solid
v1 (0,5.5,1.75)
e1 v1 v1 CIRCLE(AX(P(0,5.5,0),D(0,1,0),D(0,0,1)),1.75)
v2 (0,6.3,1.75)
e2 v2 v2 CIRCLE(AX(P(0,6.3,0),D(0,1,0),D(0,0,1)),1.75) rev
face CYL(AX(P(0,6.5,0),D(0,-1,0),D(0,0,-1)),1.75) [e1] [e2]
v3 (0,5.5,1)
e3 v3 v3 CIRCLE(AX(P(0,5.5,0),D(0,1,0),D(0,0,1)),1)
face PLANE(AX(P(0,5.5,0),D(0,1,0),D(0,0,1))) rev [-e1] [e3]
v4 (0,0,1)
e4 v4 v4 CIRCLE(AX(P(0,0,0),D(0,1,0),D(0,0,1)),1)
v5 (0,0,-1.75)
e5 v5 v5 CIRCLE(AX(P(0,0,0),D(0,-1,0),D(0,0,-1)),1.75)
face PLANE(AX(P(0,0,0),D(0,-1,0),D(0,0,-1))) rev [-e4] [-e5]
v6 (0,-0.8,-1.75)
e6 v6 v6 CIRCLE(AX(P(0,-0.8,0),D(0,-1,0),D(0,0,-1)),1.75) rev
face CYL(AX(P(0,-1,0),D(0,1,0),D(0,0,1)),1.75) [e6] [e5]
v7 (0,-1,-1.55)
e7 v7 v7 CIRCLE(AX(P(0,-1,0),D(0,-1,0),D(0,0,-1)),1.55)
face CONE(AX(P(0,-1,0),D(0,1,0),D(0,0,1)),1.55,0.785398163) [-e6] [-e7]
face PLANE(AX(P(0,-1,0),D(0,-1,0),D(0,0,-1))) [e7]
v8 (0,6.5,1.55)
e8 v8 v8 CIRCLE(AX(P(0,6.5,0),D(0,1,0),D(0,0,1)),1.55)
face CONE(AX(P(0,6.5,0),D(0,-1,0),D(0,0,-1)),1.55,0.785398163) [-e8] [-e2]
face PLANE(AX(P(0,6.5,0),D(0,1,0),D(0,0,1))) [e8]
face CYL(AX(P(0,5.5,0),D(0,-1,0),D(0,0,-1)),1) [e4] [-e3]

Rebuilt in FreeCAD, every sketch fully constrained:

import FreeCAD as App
import Part
import Sketcher
from FreeCAD import Vector


def edges_at(feature, points):
    """Names of the edges that pass closest to the given points."""
    edges = feature.Shape.Edges
    near = lambda p: min(range(len(edges)), key=lambda i: edges[i].distToShape(Part.Vertex(*p))[0])
    return sorted({f"Edge{near(p) + 1}" for p in points})

doc = App.newDocument("Part")
body = doc.addObject("PartDesign::Body", "Body")

sketch1 = body.newObject("Sketcher::SketchObject", "Sketch")
sketch1.AttachmentSupport = (doc.getObject("XZ_Plane"), [""])
sketch1.MapMode = "FlatFace"
sketch1.addGeometry(Part.Circle(Vector(0, 0, 0), Vector(0, 0, 1), 1), False)
sketch1.addConstraint([
    Sketcher.Constraint("Coincident", 0, 3, -1, 1),
    Sketcher.Constraint("Diameter", 0, 2.0),
])
pad1 = body.newObject("PartDesign::Pad", "Pad")
pad1.Profile = sketch1
pad1.Length = 5.5
pad1.Reversed = True

sketch2 = body.newObject("Sketcher::SketchObject", "Sketch001")
sketch2.AttachmentSupport = (doc.getObject("XZ_Plane"), [""])
sketch2.MapMode = "FlatFace"
sketch2.AttachmentOffset = App.Placement(Vector(0, 0, -5.5), App.Rotation())
sketch2.addGeometry(Part.Circle(Vector(0, 0, 0), Vector(0, 0, 1), 1.8), False)
sketch2.addConstraint([
    Sketcher.Constraint("Coincident", 0, 3, -1, 1),
    Sketcher.Constraint("Diameter", 0, 3.5),
])
pad2 = body.newObject("PartDesign::Pad", "Pad001")
pad2.Profile = sketch2
pad2.Length = 1
pad2.Reversed = True
doc.recompute()

chamfer = body.newObject("PartDesign::Chamfer", "Chamfer")
chamfer.Base = (pad2, edges_at(pad2, [(-1.75, 6.5, 0)]))
chamfer.Size = 0.2

sketch3 = body.newObject("Sketcher::SketchObject", "Sketch002")
sketch3.AttachmentSupport = (doc.getObject("XZ_Plane"), [""])
sketch3.MapMode = "FlatFace"
sketch3.addGeometry(Part.Circle(Vector(0, 0, 0), Vector(0, 0, 1), 1.8), False)
sketch3.addConstraint([
    Sketcher.Constraint("Coincident", 0, 3, -1, 1),
    Sketcher.Constraint("Diameter", 0, 3.5),
])
pad3 = body.newObject("PartDesign::Pad", "Pad002")
pad3.Profile = sketch3
pad3.Length = 1
doc.recompute()

chamfer2 = body.newObject("PartDesign::Chamfer", "Chamfer001")
chamfer2.Base = (pad3, edges_at(pad3, [(-1.75, -1, 0)]))
chamfer2.Size = 0.2

doc.recompute()
